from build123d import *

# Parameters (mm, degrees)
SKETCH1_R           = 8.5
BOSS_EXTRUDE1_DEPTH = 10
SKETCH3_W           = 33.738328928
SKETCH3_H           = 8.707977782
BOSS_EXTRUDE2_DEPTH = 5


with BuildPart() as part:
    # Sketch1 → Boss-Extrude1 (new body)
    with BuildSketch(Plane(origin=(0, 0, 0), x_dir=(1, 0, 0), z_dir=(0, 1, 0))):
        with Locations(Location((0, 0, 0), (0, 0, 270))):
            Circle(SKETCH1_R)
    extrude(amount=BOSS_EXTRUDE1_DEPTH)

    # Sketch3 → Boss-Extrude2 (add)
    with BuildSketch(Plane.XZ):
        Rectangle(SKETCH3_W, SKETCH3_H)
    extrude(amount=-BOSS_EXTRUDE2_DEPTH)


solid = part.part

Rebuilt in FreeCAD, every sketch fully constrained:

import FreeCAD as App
import Part
import Sketcher
from FreeCAD import Vector

doc = App.newDocument("Part")
body = doc.addObject("PartDesign::Body", "Body")

# Sketch on XZ plane
sketch1 = doc.addObject("Sketcher::SketchObject", "Sketch")
body.addObject(sketch1)
sketch1.AttachmentSupport = (doc.XZ_Plane, [""])
sketch1.MapMode = "FlatFace"
sketch1.addGeometry(Part.Circle(Vector(0, 0, 0), Vector(0, 0, 1), 8.5), False)
sketch1.addConstraint([
    Sketcher.Constraint("Coincident", 0, 3, -1, 1),
    Sketcher.Constraint("Diameter", 0, 17.0),
])
pad1 = doc.addObject("PartDesign::Pad", "Pad")
body.addObject(pad1)
pad1.Profile = sketch1
pad1.Length = 10
pad1.Reversed = True

# Sketch on XZ plane
sketch2 = doc.addObject("Sketcher::SketchObject", "Sketch001")
body.addObject(sketch2)
sketch2.AttachmentSupport = (doc.XZ_Plane, [""])
sketch2.MapMode = "FlatFace"
sketch2.addGeometry([
    Part.LineSegment(Vector(-16.869164, 4.353989, 0), Vector(-16.869164, -4.353989, 0)),
    Part.LineSegment(Vector(-16.869164, -4.353989, 0), Vector(16.869164, -4.353989, 0)),
    Part.LineSegment(Vector(16.869164, -4.353989, 0), Vector(16.869164, 4.353989, 0)),
    Part.LineSegment(Vector(16.869164, 4.353989, 0), Vector(-16.869164, 4.353989, 0)),
], False)
sketch2.addConstraint([
    Sketcher.Constraint("Coincident", 0, 2, 1, 1),
    Sketcher.Constraint("Coincident", 1, 2, 2, 1),
    Sketcher.Constraint("Coincident", 2, 2, 3, 1),
    Sketcher.Constraint("Coincident", 3, 2, 0, 1),
    Sketcher.Constraint("Vertical", 0),
    Sketcher.Constraint("Horizontal", 1),
    Sketcher.Constraint("Vertical", 2),
    Sketcher.Constraint("Horizontal", 3),
    Sketcher.Constraint("Symmetric", 0, 2, 2, 2, -1, 1),
    Sketcher.Constraint("DistanceX", 1, 1, 1, 2, 33.738329),
    Sketcher.Constraint("DistanceY", 0, 2, 0, 1, 8.707978),
])
pad2 = doc.addObject("PartDesign::Pad", "Pad001")
body.addObject(pad2)
pad2.Profile = sketch2
pad2.Length = 5
pad2.Reversed = True

doc.recompute()
